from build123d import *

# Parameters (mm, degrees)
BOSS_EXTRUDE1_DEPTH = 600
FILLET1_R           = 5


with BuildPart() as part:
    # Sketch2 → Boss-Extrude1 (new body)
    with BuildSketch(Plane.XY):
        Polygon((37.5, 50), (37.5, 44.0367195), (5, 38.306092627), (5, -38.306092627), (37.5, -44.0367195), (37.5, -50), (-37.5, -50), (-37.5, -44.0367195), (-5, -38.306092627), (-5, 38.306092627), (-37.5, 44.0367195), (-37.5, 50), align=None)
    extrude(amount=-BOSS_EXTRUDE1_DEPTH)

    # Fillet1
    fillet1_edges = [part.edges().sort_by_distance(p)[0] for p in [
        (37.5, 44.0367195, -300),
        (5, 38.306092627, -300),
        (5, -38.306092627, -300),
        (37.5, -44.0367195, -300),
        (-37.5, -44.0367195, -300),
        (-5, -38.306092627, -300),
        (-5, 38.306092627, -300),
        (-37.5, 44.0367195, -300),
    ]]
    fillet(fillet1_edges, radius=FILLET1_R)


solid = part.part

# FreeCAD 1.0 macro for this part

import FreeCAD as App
import Part
import Sketcher

V = App.Vector
Q = App.Units.Quantity


def edges_at(feature, points):
    """Names of the edges that pass closest to the given points."""
    edges = feature.Shape.Edges
    near = lambda p: min(range(len(edges)), key=lambda i: edges[i].distToShape(Part.Vertex(*p))[0])
    return sorted({f"Edge{near(p) + 1}" for p in points})

doc = App.newDocument("Part")
body = doc.addObject("PartDesign::Body", "Body")

sketch1 = doc.addObject("Sketcher::SketchObject", "Sketch")
body.addObject(sketch1)
sketch1.AttachmentSupport = (doc.XY_Plane, [""])
sketch1.MapMode = "FlatFace"
sketch1.addGeometry(Part.LineSegment(V(38, 44, 0), V(38, 50, 0)), False)
sketch1.addGeometry(Part.LineSegment(V(38, 50, 0), V(-38, 50, 0)), False)
sketch1.addGeometry(Part.LineSegment(V(-38, 50, 0), V(-38, 44, 0)), False)
sketch1.addGeometry(Part.LineSegment(V(-38, 44, 0), V(-5, 38, 0)), False)
sketch1.addGeometry(Part.LineSegment(V(-5, 38, 0), V(-5, -38, 0)), False)
sketch1.addGeometry(Part.LineSegment(V(-5, -38, 0), V(-38, -44, 0)), False)
sketch1.addGeometry(Part.LineSegment(V(-38, -44, 0), V(-38, -50, 0)), False)
sketch1.addGeometry(Part.LineSegment(V(-38, -50, 0), V(38, -50, 0)), False)
sketch1.addGeometry(Part.LineSegment(V(38, -50, 0), V(38, -44, 0)), False)
sketch1.addGeometry(Part.LineSegment(V(38, -44, 0), V(5, -38, 0)), False)
sketch1.addGeometry(Part.LineSegment(V(5, -38, 0), V(5, 38, 0)), False)
sketch1.addGeometry(Part.LineSegment(V(5, 38, 0), V(38, 44, 0)), False)
sketch1.addConstraint(Sketcher.Constraint("Coincident", 0, 2, 1, 1))
sketch1.addConstraint(Sketcher.Constraint("Coincident", 1, 2, 2, 1))
sketch1.addConstraint(Sketcher.Constraint("Coincident", 2, 2, 3, 1))
sketch1.addConstraint(Sketcher.Constraint("Coincident", 3, 2, 4, 1))
sketch1.addConstraint(Sketcher.Constraint("Coincident", 4, 2, 5, 1))
sketch1.addConstraint(Sketcher.Constraint("Coincident", 5, 2, 6, 1))
sketch1.addConstraint(Sketcher.Constraint("Coincident", 6, 2, 7, 1))
sketch1.addConstraint(Sketcher.Constraint("Coincident", 7, 2, 8, 1))
sketch1.addConstraint(Sketcher.Constraint("Coincident", 8, 2, 9, 1))
sketch1.addConstraint(Sketcher.Constraint("Coincident", 9, 2, 10, 1))
sketch1.addConstraint(Sketcher.Constraint("Coincident", 10, 2, 11, 1))
sketch1.addConstraint(Sketcher.Constraint("Coincident", 11, 2, 0, 1))
sketch1.addConstraint(Sketcher.Constraint("Vertical", 0))
sketch1.addConstraint(Sketcher.Constraint("Horizontal", 1))
sketch1.addConstraint(Sketcher.Constraint("Vertical", 2))
sketch1.addConstraint(Sketcher.Constraint("Vertical", 4))
sketch1.addConstraint(Sketcher.Constraint("Vertical", 6))
sketch1.addConstraint(Sketcher.Constraint("Horizontal", 7))
sketch1.addConstraint(Sketcher.Constraint("Vertical", 8))
sketch1.addConstraint(Sketcher.Constraint("Vertical", 10))
sketch1.addConstraint(Sketcher.Constraint("Symmetric", 0, 2, 6, 2, -1, 1))
sketch1.addConstraint(Sketcher.Constraint("Symmetric", 2, 2, 8, 2, -1, 1))
sketch1.addConstraint(Sketcher.Constraint("Symmetric", 3, 2, 9, 2, -1, 1))
sketch1.addConstraint(Sketcher.Constraint("Symmetric", 5, 2, 8, 2, -2))
sketch1.addConstraint(Sketcher.Constraint("Parallel", 5, 11))
sketch1.addConstraint(Sketcher.Constraint("Horizontal", 4, 2, 9, 2))
sketch1.addConstraint(Sketcher.Constraint("Horizontal", 3, 2, 10, 2))
sketch1.addConstraint(Sketcher.Constraint("DistanceX", 1, 2, 1, 1, Q("75 mm")))
sketch1.addConstraint(Sketcher.Constraint("Angle", 3, Q("-10 deg")))
sketch1.addConstraint(Sketcher.Constraint("DistanceY", -1, 1, 0, 2, Q("50 mm")))
sketch1.addConstraint(Sketcher.Constraint("DistanceX", 3, 2, -1, 1, Q("5 mm")))
sketch1.addConstraint(Sketcher.Constraint("DistanceY", 0, 1, 0, 2, Q("5.963281 mm")))
pad1 = doc.addObject("PartDesign::Pad", "Pad")
body.addObject(pad1)
pad1.Profile = sketch1
pad1.Length = 600
pad1.Reversed = True
doc.recompute()

fillet = doc.addObject("PartDesign::Fillet", "Fillet")
body.addObject(fillet)
fillet.Base = (pad1, edges_at(pad1, [
    (37.5, 44.037, -300),
    (5, 38.306, -300),
    (5, -38.306, -300),
    (37.5, -44.037, -300),
    (-37.5, -44.037, -300),
    (-5, -38.306, -300),
    (-5, 38.306, -300),
    (-37.5, 44.037, -300),
]))
fillet.Radius = 5

doc.recompute()
